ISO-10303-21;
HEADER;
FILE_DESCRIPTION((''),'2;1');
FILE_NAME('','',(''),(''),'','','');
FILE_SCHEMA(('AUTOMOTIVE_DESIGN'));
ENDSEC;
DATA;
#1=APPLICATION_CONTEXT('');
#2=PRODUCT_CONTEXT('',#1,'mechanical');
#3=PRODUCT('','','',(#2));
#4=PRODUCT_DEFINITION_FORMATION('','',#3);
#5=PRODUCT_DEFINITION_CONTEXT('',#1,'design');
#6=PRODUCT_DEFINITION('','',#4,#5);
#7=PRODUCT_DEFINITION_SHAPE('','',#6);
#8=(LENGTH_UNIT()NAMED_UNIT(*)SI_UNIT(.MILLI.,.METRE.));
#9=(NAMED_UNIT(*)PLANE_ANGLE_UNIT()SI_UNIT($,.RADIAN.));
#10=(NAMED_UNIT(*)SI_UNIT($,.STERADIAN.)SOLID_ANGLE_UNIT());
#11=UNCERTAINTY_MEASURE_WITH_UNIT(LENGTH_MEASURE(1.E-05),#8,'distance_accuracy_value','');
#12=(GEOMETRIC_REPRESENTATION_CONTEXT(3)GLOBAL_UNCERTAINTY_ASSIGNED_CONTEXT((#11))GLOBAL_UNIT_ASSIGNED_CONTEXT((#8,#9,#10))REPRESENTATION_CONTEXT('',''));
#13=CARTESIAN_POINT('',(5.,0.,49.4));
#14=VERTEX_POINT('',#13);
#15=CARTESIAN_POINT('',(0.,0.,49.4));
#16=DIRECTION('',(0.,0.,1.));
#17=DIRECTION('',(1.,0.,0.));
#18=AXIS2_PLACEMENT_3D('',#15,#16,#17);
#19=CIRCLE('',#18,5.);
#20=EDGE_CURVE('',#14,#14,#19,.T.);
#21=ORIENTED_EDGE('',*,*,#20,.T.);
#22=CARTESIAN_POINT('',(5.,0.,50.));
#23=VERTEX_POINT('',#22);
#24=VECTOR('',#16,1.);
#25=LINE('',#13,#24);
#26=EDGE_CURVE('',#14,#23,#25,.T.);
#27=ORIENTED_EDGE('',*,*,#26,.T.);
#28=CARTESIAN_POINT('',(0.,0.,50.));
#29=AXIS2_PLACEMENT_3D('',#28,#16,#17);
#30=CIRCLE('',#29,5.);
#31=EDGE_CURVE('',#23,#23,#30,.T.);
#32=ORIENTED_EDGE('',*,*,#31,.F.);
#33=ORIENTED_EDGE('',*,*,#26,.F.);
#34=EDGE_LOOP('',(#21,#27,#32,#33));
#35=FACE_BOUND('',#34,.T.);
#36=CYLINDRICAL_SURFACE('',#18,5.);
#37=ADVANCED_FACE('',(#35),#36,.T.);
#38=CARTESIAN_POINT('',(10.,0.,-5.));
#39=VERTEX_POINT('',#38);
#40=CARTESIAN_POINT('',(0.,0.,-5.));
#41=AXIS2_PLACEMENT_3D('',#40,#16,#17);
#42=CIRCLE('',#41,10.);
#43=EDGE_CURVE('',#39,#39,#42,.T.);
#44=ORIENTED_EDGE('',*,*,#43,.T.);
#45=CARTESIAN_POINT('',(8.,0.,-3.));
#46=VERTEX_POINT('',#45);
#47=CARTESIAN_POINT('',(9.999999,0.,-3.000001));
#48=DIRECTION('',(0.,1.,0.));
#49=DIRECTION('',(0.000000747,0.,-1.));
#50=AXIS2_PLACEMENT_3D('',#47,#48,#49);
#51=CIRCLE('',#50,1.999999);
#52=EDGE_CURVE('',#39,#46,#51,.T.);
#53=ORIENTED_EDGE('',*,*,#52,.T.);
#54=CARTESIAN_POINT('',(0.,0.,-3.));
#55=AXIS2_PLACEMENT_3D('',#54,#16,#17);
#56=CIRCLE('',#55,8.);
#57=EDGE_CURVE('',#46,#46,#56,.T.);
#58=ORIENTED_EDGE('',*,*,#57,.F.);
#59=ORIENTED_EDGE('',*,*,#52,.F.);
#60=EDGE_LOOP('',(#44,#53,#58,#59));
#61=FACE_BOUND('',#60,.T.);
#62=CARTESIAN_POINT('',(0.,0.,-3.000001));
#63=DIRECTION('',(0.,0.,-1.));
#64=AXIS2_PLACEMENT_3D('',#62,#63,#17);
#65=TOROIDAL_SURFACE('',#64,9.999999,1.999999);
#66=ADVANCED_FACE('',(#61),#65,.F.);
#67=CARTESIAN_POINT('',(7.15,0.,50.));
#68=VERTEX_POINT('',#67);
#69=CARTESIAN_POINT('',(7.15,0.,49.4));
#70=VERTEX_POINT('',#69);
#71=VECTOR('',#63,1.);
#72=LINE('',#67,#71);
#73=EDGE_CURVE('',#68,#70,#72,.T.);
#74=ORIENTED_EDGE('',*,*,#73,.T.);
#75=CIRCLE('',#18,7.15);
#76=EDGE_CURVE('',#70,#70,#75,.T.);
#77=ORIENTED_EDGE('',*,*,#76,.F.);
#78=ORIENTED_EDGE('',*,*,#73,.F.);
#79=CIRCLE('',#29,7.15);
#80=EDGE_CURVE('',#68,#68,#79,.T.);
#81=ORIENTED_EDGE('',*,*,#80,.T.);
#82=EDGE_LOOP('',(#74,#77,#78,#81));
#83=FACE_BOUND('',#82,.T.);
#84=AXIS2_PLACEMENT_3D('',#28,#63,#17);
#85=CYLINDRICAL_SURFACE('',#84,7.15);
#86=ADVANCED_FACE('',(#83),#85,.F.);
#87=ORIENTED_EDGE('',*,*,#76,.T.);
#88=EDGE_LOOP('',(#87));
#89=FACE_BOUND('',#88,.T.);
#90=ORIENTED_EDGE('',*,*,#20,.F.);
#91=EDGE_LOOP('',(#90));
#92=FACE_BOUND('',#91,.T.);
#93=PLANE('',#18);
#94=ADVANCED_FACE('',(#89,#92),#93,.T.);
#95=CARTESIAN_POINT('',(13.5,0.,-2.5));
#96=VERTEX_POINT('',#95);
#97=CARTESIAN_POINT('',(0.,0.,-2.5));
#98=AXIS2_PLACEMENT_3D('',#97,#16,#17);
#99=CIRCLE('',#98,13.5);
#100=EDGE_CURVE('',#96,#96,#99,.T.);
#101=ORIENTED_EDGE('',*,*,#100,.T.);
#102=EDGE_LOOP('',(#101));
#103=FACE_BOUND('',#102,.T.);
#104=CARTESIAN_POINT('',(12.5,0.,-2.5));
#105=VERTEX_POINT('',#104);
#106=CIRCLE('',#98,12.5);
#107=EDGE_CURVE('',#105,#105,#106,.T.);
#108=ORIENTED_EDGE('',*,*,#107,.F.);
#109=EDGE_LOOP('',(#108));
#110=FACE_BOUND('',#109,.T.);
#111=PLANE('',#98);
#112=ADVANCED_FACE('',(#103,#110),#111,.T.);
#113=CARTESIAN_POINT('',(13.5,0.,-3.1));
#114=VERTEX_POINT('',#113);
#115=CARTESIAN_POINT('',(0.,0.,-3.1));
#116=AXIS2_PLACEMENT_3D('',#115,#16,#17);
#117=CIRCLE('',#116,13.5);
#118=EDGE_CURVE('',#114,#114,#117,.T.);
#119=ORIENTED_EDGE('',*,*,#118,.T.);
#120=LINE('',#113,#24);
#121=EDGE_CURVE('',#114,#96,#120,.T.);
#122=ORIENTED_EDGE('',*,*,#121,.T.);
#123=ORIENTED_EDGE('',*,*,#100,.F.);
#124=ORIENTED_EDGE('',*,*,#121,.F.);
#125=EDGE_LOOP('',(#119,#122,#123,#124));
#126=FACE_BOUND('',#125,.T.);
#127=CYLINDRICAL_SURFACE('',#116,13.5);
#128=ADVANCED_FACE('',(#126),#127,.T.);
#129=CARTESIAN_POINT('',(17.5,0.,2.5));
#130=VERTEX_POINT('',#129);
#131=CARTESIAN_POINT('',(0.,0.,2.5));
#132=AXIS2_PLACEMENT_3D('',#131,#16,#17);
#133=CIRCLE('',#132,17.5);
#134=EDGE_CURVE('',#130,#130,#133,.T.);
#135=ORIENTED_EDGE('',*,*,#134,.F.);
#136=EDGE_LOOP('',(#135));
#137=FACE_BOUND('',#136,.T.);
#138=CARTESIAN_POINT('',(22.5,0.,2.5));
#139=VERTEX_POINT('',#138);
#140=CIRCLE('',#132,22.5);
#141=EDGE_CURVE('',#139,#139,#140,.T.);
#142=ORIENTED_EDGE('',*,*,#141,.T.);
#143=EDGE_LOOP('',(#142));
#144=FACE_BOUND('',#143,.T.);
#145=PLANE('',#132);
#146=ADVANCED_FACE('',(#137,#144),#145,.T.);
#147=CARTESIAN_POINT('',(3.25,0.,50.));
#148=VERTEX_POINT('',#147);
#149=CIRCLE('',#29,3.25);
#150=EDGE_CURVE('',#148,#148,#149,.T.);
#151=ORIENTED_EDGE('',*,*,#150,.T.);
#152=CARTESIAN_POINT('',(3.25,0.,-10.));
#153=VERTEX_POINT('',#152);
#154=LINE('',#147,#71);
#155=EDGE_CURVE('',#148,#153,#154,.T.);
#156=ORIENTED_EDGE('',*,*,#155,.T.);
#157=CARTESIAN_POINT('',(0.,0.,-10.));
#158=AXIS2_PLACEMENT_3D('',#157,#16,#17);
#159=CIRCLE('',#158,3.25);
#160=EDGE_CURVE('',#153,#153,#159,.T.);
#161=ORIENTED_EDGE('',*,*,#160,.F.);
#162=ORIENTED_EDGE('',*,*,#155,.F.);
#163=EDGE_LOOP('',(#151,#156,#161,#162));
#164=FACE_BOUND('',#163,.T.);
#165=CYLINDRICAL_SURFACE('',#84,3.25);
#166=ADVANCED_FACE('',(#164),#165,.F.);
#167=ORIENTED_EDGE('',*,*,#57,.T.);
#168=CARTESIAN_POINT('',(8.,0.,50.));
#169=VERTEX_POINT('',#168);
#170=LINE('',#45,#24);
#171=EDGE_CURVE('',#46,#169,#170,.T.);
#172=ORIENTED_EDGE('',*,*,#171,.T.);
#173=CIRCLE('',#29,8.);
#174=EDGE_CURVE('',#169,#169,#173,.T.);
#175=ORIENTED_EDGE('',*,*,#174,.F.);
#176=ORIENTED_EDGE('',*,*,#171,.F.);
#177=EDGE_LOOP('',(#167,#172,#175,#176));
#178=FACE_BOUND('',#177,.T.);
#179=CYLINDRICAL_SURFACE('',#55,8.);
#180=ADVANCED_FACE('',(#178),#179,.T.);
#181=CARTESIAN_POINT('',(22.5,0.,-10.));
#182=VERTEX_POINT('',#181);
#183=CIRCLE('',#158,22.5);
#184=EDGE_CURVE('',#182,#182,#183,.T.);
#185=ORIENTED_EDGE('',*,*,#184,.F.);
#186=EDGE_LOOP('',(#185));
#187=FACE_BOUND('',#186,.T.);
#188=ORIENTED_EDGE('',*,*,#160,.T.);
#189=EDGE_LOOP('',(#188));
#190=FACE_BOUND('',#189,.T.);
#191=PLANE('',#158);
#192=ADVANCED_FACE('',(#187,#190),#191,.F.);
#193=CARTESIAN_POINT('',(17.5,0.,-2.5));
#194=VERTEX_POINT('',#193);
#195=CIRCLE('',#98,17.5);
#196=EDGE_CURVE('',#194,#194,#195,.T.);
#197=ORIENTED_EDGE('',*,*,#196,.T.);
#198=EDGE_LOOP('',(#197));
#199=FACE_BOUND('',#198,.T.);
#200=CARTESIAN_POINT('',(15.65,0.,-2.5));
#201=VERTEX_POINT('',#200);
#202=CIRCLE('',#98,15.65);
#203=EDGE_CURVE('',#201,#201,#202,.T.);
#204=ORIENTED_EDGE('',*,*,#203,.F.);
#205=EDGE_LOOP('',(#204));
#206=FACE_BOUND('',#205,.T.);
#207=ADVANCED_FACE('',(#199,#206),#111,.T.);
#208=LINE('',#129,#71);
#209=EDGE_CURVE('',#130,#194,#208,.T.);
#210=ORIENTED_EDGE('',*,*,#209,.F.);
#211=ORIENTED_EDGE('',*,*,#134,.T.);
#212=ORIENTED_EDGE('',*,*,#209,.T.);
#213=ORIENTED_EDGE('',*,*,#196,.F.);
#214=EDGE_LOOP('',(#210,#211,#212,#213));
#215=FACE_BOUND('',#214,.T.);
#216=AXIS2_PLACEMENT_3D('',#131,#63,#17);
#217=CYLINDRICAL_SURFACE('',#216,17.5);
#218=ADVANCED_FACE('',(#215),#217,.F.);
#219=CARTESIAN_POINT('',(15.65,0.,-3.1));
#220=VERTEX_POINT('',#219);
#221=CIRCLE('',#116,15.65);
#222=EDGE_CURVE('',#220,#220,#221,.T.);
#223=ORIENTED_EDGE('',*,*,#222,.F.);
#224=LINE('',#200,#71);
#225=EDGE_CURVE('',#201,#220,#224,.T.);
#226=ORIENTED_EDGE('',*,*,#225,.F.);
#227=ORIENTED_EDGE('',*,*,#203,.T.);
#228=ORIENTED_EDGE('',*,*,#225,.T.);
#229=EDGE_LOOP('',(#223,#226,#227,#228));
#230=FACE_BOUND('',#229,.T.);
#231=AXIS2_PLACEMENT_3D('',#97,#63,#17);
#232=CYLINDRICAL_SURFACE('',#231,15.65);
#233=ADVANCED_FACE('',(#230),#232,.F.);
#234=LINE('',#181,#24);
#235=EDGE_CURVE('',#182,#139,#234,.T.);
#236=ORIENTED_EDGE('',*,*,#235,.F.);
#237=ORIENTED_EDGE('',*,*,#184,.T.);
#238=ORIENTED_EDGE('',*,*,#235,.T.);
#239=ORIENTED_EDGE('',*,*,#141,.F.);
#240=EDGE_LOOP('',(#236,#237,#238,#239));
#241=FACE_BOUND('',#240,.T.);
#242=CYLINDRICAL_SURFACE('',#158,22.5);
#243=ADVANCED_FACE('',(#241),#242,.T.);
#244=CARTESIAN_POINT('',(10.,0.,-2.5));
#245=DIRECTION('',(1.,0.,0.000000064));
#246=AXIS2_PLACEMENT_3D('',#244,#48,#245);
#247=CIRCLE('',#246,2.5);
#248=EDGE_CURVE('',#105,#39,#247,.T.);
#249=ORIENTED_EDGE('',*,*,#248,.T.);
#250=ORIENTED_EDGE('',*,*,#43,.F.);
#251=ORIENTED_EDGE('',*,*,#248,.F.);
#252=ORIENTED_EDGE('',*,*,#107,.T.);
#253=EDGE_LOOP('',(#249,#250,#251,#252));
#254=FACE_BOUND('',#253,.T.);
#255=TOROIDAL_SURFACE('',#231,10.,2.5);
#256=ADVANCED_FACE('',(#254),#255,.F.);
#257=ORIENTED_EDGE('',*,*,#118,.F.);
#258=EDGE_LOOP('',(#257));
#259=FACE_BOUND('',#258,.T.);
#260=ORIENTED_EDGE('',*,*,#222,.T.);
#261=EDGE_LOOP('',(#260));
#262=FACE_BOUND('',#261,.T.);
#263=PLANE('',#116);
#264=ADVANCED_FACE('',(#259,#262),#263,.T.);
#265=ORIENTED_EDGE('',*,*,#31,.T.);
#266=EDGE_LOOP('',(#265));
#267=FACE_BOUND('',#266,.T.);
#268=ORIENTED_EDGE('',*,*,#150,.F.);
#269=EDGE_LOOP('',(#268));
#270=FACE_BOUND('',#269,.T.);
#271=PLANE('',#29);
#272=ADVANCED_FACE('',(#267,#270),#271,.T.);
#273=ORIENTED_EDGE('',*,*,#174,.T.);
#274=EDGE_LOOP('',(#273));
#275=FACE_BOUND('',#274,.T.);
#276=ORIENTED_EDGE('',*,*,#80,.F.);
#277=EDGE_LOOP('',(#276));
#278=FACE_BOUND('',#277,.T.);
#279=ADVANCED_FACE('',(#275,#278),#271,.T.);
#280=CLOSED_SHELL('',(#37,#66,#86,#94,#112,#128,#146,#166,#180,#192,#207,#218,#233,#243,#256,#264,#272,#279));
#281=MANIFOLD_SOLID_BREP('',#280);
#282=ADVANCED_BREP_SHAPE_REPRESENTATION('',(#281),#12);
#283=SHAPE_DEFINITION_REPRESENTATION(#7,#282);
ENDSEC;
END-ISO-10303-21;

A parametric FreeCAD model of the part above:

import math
import FreeCAD as App
import Part
import Sketcher
from FreeCAD import Vector
Q = App.Units.Quantity

doc = App.newDocument("Part")
body = doc.addObject("PartDesign::Body", "Body")

# Sketch on XZ plane
sketch1 = doc.addObject("Sketcher::SketchObject", "Sketch")
body.addObject(sketch1)
sketch1.AttachmentSupport = (doc.XZ_Plane, [""])
sketch1.MapMode = "FlatFace"
sketch1.addGeometry([
    Part.LineSegment(Vector(3.2, 50, 0), Vector(3.2, -10, 0)),  # 0
    Part.LineSegment(Vector(3.2, -10, 0), Vector(22.5, -10, 0)),  # 1
    Part.LineSegment(Vector(22.5, -10, 0), Vector(22.5, 2.5, 0)),  # 2
    Part.LineSegment(Vector(22.5, 2.5, 0), Vector(17.5, 2.5, 0)),  # 3
    Part.LineSegment(Vector(17.5, 2.5, 0), Vector(17.5, -2.5, 0)),  # 4
    Part.LineSegment(Vector(17.5, -2.5, 0), Vector(15.7, -2.5, 0)),  # 5
    Part.LineSegment(Vector(15.7, -2.5, 0), Vector(15.7, -3.1, 0)),  # 6
    Part.LineSegment(Vector(15.7, -3.1, 0), Vector(13.5, -3.1, 0)),  # 7
    Part.LineSegment(Vector(13.5, -3.1, 0), Vector(13.5, -2.5, 0)),  # 8
    Part.LineSegment(Vector(13.5, -2.5, 0), Vector(12.5, -2.5, 0)),  # 9
    Part.ArcOfCircle(Part.Circle(Vector(10, -2.5, 0), Vector(0, 0, 1), 2.5), math.radians(-90), math.radians(0)),  # 10
    Part.ArcOfCircle(Part.Circle(Vector(10, -3, 0), Vector(0, 0, 1), 2), math.radians(180), math.radians(270)),  # 11
    Part.LineSegment(Vector(8, -3, 0), Vector(8, 50, 0)),  # 12
    Part.LineSegment(Vector(8, 50, 0), Vector(7.2, 50, 0)),  # 13
    Part.LineSegment(Vector(7.2, 50, 0), Vector(7.2, 49.4, 0)),  # 14
    Part.LineSegment(Vector(7.2, 49.4, 0), Vector(5, 49.4, 0)),  # 15
    Part.LineSegment(Vector(5, 49.4, 0), Vector(5, 50, 0)),  # 16
    Part.LineSegment(Vector(5, 50, 0), Vector(3.2, 50, 0)),  # 17
], False)
sketch1.addConstraint([
    Sketcher.Constraint("Coincident", 0, 2, 1, 1),
    Sketcher.Constraint("Coincident", 1, 2, 2, 1),
    Sketcher.Constraint("Coincident", 2, 2, 3, 1),
    Sketcher.Constraint("Coincident", 3, 2, 4, 1),
    Sketcher.Constraint("Coincident", 4, 2, 5, 1),
    Sketcher.Constraint("Coincident", 5, 2, 6, 1),
    Sketcher.Constraint("Coincident", 6, 2, 7, 1),
    Sketcher.Constraint("Coincident", 7, 2, 8, 1),
    Sketcher.Constraint("Coincident", 8, 2, 9, 1),
    Sketcher.Constraint("Coincident", 9, 2, 10, 2),
    Sketcher.Constraint("Tangent", 10, 1, 11, 2),
    Sketcher.Constraint("Tangent", 11, 1, 12, 1),
    Sketcher.Constraint("Coincident", 12, 2, 13, 1),
    Sketcher.Constraint("Coincident", 13, 2, 14, 1),
    Sketcher.Constraint("Coincident", 14, 2, 15, 1),
    Sketcher.Constraint("Coincident", 15, 2, 16, 1),
    Sketcher.Constraint("Coincident", 16, 2, 17, 1),
    Sketcher.Constraint("Coincident", 17, 2, 0, 1),
    Sketcher.Constraint("Vertical", 0),
    Sketcher.Constraint("Horizontal", 1),
    Sketcher.Constraint("Vertical", 2),
    Sketcher.Constraint("Horizontal", 3),
    Sketcher.Constraint("Vertical", 4),
    Sketcher.Constraint("Horizontal", 5),
    Sketcher.Constraint("Vertical", 6),
    Sketcher.Constraint("Horizontal", 7),
    Sketcher.Constraint("Vertical", 8),
    Sketcher.Constraint("Horizontal", 9),
    Sketcher.Constraint("Vertical", 12),
    Sketcher.Constraint("Horizontal", 13),
    Sketcher.Constraint("Vertical", 14),
    Sketcher.Constraint("Horizontal", 15),
    Sketcher.Constraint("Vertical", 16),
    Sketcher.Constraint("Horizontal", 17),
    Sketcher.Constraint("Horizontal", 10, 3, 4, 2),
    Sketcher.Constraint("Horizontal", 5, 2, 8, 2),
    Sketcher.Constraint("Horizontal", 13, 2, 16, 2),
    Sketcher.Constraint("Vertical", 10, 3, 11, 3),
    Sketcher.Constraint("Equal", 7, 15),
    Sketcher.Constraint("Equal", 3, 4),
    Sketcher.Constraint("Equal", 8, 14),
    Sketcher.Constraint("Radius", 11, Q("1.999999 mm")),
    Sketcher.Constraint("Radius", 10, Q("2.5 mm")),
    Sketcher.Constraint("DistanceX", 3, 2, 3, 1, Q("5 mm")),
    Sketcher.Constraint("DistanceX", 9, 2, 9, 1, Q("1 mm")),
    Sketcher.Constraint("DistanceY", 0, 2, 0, 1, Q("60 mm")),
    Sketcher.Constraint("DistanceY", 12, 1, 12, 2, Q("53 mm")),
    Sketcher.Constraint("DistanceY", 6, 2, 6, 1, Q("0.6 mm")),
    Sketcher.Constraint("DistanceX", -1, 1, 10, 3, Q("10 mm")),
    Sketcher.Constraint("DistanceY", 11, 3, -1, 1, Q("3.000001 mm")),
    Sketcher.Constraint("DistanceX", -1, 1, 15, 2, Q("5 mm")),
    Sketcher.Constraint("DistanceX", 7, 2, 4, 2, Q("4 mm")),
    Sketcher.Constraint("DistanceX", 1, 1, 1, 2, Q("19.25 mm")),
    Sketcher.Constraint("DistanceX", 5, 2, 5, 1, Q("1.85 mm")),
])
revolution = doc.addObject("PartDesign::Revolution", "Revolution")
body.addObject(revolution)
revolution.Profile = sketch1
revolution.ReferenceAxis = (sketch1, ["V_Axis"])
revolution.Angle = 360

doc.recompute()
